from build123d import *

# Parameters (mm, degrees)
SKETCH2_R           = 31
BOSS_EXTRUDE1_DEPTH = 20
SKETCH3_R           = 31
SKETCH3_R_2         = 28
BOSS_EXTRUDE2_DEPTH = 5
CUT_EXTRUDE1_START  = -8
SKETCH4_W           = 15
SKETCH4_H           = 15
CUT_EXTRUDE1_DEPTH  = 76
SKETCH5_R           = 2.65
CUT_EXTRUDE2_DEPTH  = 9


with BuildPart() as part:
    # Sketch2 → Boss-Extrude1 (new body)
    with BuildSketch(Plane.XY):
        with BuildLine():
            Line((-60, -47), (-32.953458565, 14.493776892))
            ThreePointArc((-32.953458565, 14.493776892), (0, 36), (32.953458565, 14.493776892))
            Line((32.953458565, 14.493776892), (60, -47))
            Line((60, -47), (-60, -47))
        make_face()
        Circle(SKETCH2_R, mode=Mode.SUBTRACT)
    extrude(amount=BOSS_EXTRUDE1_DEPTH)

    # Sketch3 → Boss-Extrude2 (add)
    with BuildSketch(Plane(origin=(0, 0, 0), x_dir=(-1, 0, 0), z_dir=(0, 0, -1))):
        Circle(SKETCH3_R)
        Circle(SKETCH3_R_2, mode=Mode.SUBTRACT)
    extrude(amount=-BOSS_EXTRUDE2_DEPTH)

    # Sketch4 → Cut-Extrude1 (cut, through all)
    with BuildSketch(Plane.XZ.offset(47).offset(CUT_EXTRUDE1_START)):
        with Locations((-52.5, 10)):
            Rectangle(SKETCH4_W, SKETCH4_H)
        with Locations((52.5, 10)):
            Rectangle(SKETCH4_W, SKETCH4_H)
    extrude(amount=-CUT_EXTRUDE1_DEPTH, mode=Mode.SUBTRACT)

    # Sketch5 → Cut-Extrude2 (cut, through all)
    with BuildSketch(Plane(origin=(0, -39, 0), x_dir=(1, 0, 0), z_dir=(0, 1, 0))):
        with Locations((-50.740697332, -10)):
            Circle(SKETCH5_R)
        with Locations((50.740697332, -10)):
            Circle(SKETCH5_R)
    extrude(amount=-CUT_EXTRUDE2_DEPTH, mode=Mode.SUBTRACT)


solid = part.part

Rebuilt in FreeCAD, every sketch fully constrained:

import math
import FreeCAD as App
import Part
import Sketcher
from FreeCAD import Vector

doc = App.newDocument("Part")
body = doc.addObject("PartDesign::Body", "Body")

# Sketch on XY plane
sketch1 = body.newObject("Sketcher::SketchObject", "Sketch")
sketch1.AttachmentSupport = (doc.getObject("XY_Plane"), [""])
sketch1.MapMode = "FlatFace"
sketch1.addGeometry(Part.LineSegment(Vector(-33, 14, 0), Vector(-60, -47, 0)), False)
sketch1.addGeometry(Part.LineSegment(Vector(-60, -47, 0), Vector(60, -47, 0)), False)
sketch1.addGeometry(Part.LineSegment(Vector(60, -47, 0), Vector(33, 14, 0)), False)
sketch1.addGeometry(Part.ArcOfCircle(Part.Circle(Vector(0, 0, 0), Vector(0, 0, 1), 36), math.radians(24), math.radians(156)), False)
sketch1.addGeometry(Part.Circle(Vector(0, 0, 0), Vector(0, 0, 1), 31), False)
sketch1.addConstraint(Sketcher.Constraint("Coincident", 0, 2, 1, 1))
sketch1.addConstraint(Sketcher.Constraint("Coincident", 1, 2, 2, 1))
sketch1.addConstraint(Sketcher.Constraint("Tangent", 2, 2, 3, 1))
sketch1.addConstraint(Sketcher.Constraint("Tangent", 3, 2, 0, 1))
sketch1.addConstraint(Sketcher.Constraint("Horizontal", 1))
sketch1.addConstraint(Sketcher.Constraint("Coincident", 3, 3, -1, 1))
sketch1.addConstraint(Sketcher.Constraint("Coincident", 4, 3, -1, 1))
sketch1.addConstraint(Sketcher.Constraint("Horizontal", 2, 2, 3, 2))
sketch1.addConstraint(Sketcher.Constraint("Diameter", 4, 62.0))
sketch1.addConstraint(Sketcher.Constraint("Radius", 3, 36.0))
sketch1.addConstraint(Sketcher.Constraint("DistanceX", 1, 1, 1, 2, 120.0))
sketch1.addConstraint(Sketcher.Constraint("DistanceY", 0, 2, -1, 1, 47.0))
pad1 = body.newObject("PartDesign::Pad", "Pad")
pad1.Profile = sketch1
pad1.Length = 20

# Sketch on XY plane
sketch2 = body.newObject("Sketcher::SketchObject", "Sketch001")
sketch2.AttachmentSupport = (doc.getObject("XY_Plane"), [""])
sketch2.MapMode = "FlatFace"
sketch2.addGeometry(Part.Circle(Vector(0, 0, 0), Vector(0, 0, 1), 31), False)
sketch2.addGeometry(Part.Circle(Vector(0, 0, 0), Vector(0, 0, 1), 28), False)
sketch2.addConstraint(Sketcher.Constraint("Coincident", 0, 3, -1, 1))
sketch2.addConstraint(Sketcher.Constraint("Coincident", 1, 3, -1, 1))
sketch2.addConstraint(Sketcher.Constraint("Diameter", 0, 62.0))
sketch2.addConstraint(Sketcher.Constraint("Diameter", 1, 56.0))
pad2 = body.newObject("PartDesign::Pad", "Pad001")
pad2.Profile = sketch2
pad2.Length = 5

# Sketch on XZ plane
sketch3 = body.newObject("Sketcher::SketchObject", "Sketch002")
sketch3.AttachmentSupport = (doc.getObject("XZ_Plane"), [""])
sketch3.MapMode = "FlatFace"
sketch3.AttachmentOffset = App.Placement(Vector(0, 0, 39), App.Rotation())
sketch3.addGeometry(Part.LineSegment(Vector(-60, 18, 0), Vector(-60, 2, 0)), False)
sketch3.addGeometry(Part.LineSegment(Vector(-60, 2, 0), Vector(-45, 2, 0)), False)
sketch3.addGeometry(Part.LineSegment(Vector(-45, 2, 0), Vector(-45, 18, 0)), False)
sketch3.addGeometry(Part.LineSegment(Vector(-45, 18, 0), Vector(-60, 18, 0)), False)
sketch3.addGeometry(Part.LineSegment(Vector(45, 18, 0), Vector(45, 2, 0)), False)
sketch3.addGeometry(Part.LineSegment(Vector(45, 2, 0), Vector(60, 2, 0)), False)
sketch3.addGeometry(Part.LineSegment(Vector(60, 2, 0), Vector(60, 18, 0)), False)
sketch3.addGeometry(Part.LineSegment(Vector(60, 18, 0), Vector(45, 18, 0)), False)
sketch3.addConstraint(Sketcher.Constraint("Coincident", 0, 2, 1, 1))
sketch3.addConstraint(Sketcher.Constraint("Coincident", 1, 2, 2, 1))
sketch3.addConstraint(Sketcher.Constraint("Coincident", 2, 2, 3, 1))
sketch3.addConstraint(Sketcher.Constraint("Coincident", 3, 2, 0, 1))
sketch3.addConstraint(Sketcher.Constraint("Coincident", 4, 2, 5, 1))
sketch3.addConstraint(Sketcher.Constraint("Coincident", 5, 2, 6, 1))
sketch3.addConstraint(Sketcher.Constraint("Coincident", 6, 2, 7, 1))
sketch3.addConstraint(Sketcher.Constraint("Coincident", 7, 2, 4, 1))
sketch3.addConstraint(Sketcher.Constraint("Vertical", 0))
sketch3.addConstraint(Sketcher.Constraint("Horizontal", 1))
sketch3.addConstraint(Sketcher.Constraint("Vertical", 2))
sketch3.addConstraint(Sketcher.Constraint("Horizontal", 3))
sketch3.addConstraint(Sketcher.Constraint("Vertical", 4))
sketch3.addConstraint(Sketcher.Constraint("Horizontal", 5))
sketch3.addConstraint(Sketcher.Constraint("Vertical", 6))
sketch3.addConstraint(Sketcher.Constraint("Horizontal", 7))
sketch3.addConstraint(Sketcher.Constraint("Symmetric", 1, 2, 4, 2, -2))
sketch3.addConstraint(Sketcher.Constraint("Symmetric", 3, 2, 6, 2, -2))
sketch3.addConstraint(Sketcher.Constraint("Equal", 7, 0))
sketch3.addConstraint(Sketcher.Constraint("DistanceX", 1, 1, 1, 2, 15.0))
sketch3.addConstraint(Sketcher.Constraint("DistanceX", 0, 2, -1, 1, 60.0))
sketch3.addConstraint(Sketcher.Constraint("DistanceY", -1, 1, 0, 2, 2.5))
pocket1 = body.newObject("PartDesign::Pocket", "Pocket")
pocket1.Profile = sketch3
pocket1.Type = "ThroughAll"

# Sketch on XZ plane
sketch4 = body.newObject("Sketcher::SketchObject", "Sketch003")
sketch4.AttachmentSupport = (doc.getObject("XZ_Plane"), [""])
sketch4.MapMode = "FlatFace"
sketch4.AttachmentOffset = App.Placement(Vector(0, 0, 39), App.Rotation())
sketch4.addGeometry(Part.Circle(Vector(-50.7, 10, 0), Vector(0, 0, 1), 2.6), False)
sketch4.addGeometry(Part.Circle(Vector(50.7, 10, 0), Vector(0, 0, 1), 2.6), False)
sketch4.addConstraint(Sketcher.Constraint("Equal", 0, 1))
sketch4.addConstraint(Sketcher.Constraint("Symmetric", 0, 3, 1, 3, -2))
sketch4.addConstraint(Sketcher.Constraint("Diameter", 0, 5.3))
sketch4.addConstraint(Sketcher.Constraint("DistanceY", -1, 1, 0, 3, 10.0))
sketch4.addConstraint(Sketcher.Constraint("DistanceX", 0, 3, -1, 1, 50.740697))
pocket2 = body.newObject("PartDesign::Pocket", "Pocket001")
pocket2.Profile = sketch4
pocket2.Type = "ThroughAll"
pocket2.Reversed = True

doc.recompute()
